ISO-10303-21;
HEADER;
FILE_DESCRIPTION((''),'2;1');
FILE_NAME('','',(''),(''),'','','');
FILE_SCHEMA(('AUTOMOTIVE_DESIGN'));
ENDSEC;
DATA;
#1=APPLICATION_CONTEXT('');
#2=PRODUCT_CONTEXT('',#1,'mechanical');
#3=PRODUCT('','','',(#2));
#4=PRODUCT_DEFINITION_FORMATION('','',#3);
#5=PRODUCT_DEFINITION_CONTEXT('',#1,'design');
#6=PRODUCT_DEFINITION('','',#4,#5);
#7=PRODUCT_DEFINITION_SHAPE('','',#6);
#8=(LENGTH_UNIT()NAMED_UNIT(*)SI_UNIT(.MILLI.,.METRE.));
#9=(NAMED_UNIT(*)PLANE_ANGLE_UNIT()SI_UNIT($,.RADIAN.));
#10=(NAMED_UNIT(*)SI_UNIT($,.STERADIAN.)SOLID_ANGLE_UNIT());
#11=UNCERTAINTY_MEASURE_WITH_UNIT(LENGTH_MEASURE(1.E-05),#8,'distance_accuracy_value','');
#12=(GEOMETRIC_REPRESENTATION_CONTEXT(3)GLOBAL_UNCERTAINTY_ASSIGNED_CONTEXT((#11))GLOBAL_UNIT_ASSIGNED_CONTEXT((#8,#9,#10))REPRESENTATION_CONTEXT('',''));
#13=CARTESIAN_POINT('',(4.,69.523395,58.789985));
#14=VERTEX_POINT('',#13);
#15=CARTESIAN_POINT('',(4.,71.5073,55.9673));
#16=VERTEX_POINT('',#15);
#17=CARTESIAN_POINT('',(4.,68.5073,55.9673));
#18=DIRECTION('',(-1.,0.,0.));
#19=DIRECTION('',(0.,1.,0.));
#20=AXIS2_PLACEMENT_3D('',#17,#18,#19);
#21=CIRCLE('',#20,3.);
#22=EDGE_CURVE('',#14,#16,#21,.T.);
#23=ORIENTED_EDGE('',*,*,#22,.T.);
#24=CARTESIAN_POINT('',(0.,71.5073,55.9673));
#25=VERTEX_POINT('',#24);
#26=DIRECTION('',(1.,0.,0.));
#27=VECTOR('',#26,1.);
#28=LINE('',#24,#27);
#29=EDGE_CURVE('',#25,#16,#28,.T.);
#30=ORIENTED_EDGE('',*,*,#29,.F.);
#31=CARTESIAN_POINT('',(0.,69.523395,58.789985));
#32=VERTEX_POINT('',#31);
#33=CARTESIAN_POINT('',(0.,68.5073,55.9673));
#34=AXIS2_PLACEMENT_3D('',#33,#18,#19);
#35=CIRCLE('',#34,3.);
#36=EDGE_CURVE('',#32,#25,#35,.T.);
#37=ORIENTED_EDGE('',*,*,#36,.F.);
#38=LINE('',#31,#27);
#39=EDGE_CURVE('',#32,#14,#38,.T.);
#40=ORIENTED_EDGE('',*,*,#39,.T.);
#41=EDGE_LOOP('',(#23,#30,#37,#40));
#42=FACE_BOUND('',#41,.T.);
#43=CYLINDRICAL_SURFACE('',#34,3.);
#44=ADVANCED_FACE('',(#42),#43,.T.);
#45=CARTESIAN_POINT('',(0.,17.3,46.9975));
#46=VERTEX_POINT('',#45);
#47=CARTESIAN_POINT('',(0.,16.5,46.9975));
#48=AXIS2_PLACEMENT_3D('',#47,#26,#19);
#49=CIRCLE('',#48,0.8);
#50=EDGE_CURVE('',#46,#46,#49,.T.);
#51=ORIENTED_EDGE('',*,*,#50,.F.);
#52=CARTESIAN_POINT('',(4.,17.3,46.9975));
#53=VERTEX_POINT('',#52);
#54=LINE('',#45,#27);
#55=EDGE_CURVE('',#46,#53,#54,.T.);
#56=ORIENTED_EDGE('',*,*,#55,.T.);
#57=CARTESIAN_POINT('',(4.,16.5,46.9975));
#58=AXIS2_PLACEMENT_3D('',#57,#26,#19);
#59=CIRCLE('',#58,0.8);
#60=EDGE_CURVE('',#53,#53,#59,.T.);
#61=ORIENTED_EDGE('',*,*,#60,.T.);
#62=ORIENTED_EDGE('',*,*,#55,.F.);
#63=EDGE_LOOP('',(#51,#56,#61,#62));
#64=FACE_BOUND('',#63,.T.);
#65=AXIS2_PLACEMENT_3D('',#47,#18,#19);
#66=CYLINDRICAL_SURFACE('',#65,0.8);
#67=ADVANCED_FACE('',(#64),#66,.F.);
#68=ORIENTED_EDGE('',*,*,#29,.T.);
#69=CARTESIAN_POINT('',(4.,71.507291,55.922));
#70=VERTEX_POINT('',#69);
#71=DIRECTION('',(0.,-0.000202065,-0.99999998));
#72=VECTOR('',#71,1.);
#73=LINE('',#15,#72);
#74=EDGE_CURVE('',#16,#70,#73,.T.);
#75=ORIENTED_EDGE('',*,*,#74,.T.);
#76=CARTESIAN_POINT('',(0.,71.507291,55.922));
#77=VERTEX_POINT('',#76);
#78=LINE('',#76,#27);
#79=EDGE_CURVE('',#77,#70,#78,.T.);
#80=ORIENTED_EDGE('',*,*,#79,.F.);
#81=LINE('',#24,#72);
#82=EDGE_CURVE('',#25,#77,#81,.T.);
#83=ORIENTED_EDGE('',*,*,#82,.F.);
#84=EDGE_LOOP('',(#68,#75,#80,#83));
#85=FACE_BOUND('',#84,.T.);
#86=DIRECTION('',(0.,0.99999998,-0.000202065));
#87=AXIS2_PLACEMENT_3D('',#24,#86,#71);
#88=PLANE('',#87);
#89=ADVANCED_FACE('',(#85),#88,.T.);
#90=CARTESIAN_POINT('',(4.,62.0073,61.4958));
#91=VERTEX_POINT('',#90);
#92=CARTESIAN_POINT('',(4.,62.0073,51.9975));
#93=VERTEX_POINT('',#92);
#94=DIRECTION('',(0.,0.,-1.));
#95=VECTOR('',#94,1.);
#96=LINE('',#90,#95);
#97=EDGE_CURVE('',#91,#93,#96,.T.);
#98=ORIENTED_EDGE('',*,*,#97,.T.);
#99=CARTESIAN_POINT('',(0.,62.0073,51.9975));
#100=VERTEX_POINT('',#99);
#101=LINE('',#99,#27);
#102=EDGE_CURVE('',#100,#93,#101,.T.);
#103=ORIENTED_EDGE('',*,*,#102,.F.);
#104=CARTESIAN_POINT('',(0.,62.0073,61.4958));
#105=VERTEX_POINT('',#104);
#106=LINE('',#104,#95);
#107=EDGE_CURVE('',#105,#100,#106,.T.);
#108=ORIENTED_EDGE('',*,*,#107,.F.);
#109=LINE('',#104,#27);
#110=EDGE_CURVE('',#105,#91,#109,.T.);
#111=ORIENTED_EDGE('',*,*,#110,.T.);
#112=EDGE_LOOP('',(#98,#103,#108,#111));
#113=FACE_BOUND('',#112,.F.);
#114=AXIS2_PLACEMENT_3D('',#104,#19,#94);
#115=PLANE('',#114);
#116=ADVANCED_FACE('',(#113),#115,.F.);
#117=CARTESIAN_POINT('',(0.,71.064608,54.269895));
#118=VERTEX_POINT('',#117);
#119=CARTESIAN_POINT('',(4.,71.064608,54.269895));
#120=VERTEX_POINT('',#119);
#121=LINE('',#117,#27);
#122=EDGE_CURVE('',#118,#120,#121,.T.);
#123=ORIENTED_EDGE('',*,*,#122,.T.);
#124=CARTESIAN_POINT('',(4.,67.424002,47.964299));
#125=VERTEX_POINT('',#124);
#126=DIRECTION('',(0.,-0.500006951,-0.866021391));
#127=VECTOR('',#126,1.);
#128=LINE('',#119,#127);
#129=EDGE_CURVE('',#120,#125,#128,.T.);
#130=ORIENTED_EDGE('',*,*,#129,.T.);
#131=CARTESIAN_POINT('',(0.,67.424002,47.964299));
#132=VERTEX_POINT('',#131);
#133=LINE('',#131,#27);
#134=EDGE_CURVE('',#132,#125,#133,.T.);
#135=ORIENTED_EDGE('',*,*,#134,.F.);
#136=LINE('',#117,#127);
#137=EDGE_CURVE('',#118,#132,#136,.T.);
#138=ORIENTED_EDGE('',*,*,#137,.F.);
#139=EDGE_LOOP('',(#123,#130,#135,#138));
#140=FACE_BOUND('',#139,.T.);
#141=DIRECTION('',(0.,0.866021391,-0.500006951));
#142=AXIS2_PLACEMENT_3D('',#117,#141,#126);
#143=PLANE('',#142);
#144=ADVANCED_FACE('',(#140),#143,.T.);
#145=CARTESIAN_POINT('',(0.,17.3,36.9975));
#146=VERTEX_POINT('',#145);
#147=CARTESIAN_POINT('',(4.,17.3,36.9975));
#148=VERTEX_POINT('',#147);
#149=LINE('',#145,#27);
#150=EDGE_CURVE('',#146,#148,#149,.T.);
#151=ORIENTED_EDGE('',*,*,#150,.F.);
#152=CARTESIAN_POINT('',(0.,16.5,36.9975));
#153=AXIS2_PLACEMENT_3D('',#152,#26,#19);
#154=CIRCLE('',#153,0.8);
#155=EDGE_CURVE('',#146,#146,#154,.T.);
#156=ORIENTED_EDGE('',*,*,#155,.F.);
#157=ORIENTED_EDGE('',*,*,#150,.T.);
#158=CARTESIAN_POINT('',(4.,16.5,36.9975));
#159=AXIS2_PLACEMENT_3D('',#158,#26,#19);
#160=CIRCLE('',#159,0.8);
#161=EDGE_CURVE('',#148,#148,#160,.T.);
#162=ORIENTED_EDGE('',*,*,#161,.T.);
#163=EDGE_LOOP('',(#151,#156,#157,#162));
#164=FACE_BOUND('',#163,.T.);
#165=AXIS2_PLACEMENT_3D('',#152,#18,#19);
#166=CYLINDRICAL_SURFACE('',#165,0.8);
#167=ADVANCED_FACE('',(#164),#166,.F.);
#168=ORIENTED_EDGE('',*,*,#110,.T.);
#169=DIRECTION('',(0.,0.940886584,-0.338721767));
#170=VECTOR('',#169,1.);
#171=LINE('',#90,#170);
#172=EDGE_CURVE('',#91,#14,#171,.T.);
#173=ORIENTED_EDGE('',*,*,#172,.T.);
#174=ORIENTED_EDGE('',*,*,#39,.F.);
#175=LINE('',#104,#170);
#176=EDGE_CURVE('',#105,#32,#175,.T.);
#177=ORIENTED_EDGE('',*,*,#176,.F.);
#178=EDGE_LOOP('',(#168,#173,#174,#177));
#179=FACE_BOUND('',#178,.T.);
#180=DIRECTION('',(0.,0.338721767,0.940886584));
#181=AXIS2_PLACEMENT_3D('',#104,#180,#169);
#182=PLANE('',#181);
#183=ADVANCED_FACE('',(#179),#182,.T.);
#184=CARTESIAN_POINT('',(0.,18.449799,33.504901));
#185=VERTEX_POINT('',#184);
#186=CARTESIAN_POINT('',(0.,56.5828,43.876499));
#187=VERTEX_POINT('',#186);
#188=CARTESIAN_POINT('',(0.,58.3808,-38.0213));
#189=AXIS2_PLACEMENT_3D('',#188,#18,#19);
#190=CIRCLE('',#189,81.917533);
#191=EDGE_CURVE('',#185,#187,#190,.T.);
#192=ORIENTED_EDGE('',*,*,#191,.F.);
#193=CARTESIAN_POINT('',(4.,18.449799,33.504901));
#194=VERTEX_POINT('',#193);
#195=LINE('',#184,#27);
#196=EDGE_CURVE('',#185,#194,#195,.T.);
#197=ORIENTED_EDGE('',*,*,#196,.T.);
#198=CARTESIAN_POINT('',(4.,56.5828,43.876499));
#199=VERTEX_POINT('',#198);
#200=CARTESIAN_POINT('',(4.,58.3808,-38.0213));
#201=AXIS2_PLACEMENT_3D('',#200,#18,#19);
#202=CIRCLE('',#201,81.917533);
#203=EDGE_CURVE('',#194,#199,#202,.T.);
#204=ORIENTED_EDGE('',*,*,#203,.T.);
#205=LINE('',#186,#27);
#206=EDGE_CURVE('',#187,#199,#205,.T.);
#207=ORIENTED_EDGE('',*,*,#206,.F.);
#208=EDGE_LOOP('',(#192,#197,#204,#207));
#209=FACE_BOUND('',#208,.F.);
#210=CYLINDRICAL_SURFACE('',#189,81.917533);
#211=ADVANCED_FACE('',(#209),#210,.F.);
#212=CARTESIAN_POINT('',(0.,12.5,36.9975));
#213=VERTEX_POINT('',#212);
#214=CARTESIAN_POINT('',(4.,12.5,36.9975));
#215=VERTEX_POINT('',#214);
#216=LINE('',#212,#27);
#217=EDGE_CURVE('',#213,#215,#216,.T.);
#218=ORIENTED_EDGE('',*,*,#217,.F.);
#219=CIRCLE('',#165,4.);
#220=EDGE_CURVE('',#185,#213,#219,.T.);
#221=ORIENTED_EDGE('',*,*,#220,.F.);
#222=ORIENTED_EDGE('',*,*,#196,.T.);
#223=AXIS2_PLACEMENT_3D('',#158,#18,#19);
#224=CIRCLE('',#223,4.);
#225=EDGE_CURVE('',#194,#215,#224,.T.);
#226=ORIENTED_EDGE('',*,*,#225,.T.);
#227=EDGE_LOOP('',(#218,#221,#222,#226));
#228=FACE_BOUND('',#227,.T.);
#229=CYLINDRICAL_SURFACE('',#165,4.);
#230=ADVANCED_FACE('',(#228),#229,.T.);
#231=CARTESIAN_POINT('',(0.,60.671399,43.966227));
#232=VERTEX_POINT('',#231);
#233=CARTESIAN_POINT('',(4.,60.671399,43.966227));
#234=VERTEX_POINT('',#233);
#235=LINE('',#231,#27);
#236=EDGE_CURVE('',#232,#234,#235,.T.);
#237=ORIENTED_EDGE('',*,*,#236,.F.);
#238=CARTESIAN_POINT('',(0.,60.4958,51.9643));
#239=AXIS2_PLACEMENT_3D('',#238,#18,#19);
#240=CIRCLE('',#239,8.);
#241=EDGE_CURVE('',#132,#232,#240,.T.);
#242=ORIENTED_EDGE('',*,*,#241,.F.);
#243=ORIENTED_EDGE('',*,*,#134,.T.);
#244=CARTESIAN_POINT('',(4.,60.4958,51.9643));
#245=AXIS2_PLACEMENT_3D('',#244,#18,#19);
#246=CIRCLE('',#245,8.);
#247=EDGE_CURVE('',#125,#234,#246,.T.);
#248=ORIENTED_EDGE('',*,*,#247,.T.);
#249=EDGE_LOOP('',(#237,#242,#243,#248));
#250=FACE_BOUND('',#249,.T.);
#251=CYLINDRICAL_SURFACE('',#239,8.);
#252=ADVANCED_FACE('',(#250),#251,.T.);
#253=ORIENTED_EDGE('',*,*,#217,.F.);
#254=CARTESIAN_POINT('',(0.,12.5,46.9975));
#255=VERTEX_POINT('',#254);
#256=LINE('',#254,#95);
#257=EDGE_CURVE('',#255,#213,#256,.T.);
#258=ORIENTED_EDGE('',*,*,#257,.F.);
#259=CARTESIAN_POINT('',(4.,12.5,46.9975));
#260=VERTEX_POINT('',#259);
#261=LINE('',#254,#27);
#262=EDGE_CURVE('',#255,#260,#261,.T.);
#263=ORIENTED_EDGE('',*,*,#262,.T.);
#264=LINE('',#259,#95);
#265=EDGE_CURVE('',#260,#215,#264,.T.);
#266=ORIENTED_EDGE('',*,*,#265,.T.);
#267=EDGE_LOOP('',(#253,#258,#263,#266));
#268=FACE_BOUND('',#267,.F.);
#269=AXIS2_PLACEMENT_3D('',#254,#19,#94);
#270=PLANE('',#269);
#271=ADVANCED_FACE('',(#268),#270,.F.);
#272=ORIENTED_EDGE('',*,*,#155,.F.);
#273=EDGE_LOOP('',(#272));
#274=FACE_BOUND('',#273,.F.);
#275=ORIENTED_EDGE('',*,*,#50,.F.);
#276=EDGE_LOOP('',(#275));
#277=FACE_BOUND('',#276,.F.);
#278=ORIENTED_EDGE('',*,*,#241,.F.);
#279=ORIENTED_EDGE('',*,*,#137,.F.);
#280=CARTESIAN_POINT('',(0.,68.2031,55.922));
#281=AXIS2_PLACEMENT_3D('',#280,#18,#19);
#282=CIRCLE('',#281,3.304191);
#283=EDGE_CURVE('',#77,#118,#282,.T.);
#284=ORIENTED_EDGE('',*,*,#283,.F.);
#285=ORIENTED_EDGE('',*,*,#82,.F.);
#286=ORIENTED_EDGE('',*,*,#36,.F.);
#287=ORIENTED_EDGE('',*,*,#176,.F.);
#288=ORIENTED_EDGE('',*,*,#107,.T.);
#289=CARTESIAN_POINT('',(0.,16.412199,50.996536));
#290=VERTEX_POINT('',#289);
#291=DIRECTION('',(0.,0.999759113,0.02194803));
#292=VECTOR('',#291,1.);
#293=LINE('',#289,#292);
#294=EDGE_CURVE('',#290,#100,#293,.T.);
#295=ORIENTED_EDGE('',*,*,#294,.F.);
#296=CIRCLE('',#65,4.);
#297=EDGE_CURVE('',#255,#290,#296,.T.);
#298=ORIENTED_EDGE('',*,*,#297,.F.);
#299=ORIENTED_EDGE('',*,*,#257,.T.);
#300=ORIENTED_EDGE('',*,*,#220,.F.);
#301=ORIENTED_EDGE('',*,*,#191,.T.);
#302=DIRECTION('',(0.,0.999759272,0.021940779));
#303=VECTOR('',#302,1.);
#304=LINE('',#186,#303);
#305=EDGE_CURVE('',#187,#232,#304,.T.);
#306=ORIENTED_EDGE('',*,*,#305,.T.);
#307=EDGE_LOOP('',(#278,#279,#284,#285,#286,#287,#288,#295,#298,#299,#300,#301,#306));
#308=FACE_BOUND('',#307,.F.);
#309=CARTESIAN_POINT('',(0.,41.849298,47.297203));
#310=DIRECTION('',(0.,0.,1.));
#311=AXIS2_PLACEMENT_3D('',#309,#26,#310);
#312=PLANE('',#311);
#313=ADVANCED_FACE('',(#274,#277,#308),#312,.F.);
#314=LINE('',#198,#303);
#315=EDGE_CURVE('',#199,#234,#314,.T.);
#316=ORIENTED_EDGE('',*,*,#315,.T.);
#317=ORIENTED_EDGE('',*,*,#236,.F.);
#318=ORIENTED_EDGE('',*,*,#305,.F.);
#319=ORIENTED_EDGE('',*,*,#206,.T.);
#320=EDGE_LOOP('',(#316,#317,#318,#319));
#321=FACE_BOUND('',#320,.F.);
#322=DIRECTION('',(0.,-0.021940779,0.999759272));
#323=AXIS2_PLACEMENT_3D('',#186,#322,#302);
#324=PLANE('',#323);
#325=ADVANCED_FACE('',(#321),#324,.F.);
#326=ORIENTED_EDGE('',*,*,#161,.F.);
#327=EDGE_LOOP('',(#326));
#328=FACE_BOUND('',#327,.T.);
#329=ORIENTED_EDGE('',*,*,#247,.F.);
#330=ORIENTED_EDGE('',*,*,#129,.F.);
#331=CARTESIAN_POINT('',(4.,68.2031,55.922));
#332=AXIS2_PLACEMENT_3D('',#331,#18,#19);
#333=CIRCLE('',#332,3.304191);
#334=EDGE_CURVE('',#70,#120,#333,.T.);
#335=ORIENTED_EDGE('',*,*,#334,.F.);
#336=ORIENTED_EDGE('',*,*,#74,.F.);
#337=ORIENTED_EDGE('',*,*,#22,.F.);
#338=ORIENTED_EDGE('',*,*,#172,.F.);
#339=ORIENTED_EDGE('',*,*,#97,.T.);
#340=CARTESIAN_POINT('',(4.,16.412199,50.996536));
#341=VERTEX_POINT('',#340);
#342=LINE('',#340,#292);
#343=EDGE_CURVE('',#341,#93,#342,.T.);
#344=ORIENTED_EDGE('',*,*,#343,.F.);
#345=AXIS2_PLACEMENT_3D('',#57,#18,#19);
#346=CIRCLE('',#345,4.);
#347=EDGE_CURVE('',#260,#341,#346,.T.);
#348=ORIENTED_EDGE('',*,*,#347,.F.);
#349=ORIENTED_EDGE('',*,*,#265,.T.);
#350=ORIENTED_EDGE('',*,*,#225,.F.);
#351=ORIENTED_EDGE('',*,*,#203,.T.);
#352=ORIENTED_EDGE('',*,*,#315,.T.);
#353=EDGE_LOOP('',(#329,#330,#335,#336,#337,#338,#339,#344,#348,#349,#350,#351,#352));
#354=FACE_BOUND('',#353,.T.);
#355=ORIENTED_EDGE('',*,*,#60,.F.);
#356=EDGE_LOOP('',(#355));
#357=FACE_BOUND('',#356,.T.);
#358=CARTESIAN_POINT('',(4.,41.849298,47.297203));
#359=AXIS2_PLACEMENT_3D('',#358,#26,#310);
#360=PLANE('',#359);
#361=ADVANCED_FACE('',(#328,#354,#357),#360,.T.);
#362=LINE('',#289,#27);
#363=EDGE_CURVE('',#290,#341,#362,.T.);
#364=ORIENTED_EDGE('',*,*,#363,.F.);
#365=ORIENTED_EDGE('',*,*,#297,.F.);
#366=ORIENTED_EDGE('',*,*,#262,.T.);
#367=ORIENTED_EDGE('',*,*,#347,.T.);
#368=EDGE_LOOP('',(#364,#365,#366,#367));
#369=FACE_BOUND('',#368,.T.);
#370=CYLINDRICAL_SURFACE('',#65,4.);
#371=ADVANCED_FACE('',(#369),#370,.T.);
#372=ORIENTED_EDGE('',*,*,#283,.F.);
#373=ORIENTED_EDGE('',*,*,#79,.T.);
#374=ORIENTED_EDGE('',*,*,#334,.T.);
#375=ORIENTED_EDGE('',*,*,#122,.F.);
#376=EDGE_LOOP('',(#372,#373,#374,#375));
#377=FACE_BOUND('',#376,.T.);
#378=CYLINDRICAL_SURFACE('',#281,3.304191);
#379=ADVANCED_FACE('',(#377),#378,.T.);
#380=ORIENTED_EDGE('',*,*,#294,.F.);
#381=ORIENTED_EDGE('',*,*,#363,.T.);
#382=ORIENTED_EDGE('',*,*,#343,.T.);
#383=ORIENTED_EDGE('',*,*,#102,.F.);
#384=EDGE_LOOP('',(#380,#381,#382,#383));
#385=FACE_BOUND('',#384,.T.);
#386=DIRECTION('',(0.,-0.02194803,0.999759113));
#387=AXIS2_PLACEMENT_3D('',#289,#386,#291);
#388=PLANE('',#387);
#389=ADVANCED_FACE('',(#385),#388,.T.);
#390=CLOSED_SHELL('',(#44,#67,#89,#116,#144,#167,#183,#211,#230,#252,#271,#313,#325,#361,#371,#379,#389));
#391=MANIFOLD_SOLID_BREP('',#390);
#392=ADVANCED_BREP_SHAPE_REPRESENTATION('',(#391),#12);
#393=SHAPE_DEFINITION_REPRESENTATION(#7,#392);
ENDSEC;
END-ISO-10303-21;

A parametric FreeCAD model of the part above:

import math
import FreeCAD as App
import Part
import Sketcher
Q = App.Units.Quantity

doc = App.newDocument("Part")
body = doc.addObject("PartDesign::Body", "Body")

# Sketch on YZ plane
sketch1 = body.newObject("Sketcher::SketchObject", "Sketch")
sketch1.AttachmentSupport = (doc.getObject("YZ_Plane"), [""])
sketch1.MapMode = "FlatFace"
sketch1.addGeometry([
    Part.ArcOfCircle(Part.Circle(App.Vector(16.5, 46.998, 0), App.Vector(0, 0, 1), 4), math.radians(91), math.radians(180)),  # 0
    Part.LineSegment(App.Vector(12.5, 46.998, 0), App.Vector(12.5, 36.998, 0)),  # 1
    Part.ArcOfCircle(Part.Circle(App.Vector(16.5, 36.998, 0), App.Vector(0, 0, 1), 4), math.radians(180), math.radians(299)),  # 2
    Part.ArcOfCircle(Part.Circle(App.Vector(58.381, -38.021, 0), App.Vector(0, 0, 1), 81.918), math.radians(91), math.radians(119)),  # 3
    Part.LineSegment(App.Vector(56.583, 43.877, 0), App.Vector(60.671, 43.966, 0)),  # 4
    Part.ArcOfCircle(Part.Circle(App.Vector(60.496, 51.964, 0), App.Vector(0, 0, 1), 8), math.radians(-89), math.radians(-30)),  # 5
    Part.LineSegment(App.Vector(67.424, 47.964, 0), App.Vector(71.065, 54.27, 0)),  # 6
    Part.ArcOfCircle(Part.Circle(App.Vector(68.203, 55.922, 0), App.Vector(0, 0, 1), 3.304), math.radians(-30), math.radians(0)),  # 7
    Part.LineSegment(App.Vector(71.507, 55.922, 0), App.Vector(71.507, 55.967, 0)),  # 8
    Part.ArcOfCircle(Part.Circle(App.Vector(68.507, 55.967, 0), App.Vector(0, 0, 1), 3), math.radians(0), math.radians(70)),  # 9
    Part.LineSegment(App.Vector(69.523, 58.79, 0), App.Vector(62.007, 61.496, 0)),  # 10
    Part.LineSegment(App.Vector(62.007, 61.496, 0), App.Vector(62.007, 51.998, 0)),  # 11
    Part.LineSegment(App.Vector(62.007, 51.998, 0), App.Vector(16.412, 50.996, 0)),  # 12
    Part.Circle(App.Vector(16.5, 36.998, 0), App.Vector(0, 0, 1), 0.8),  # 13
    Part.Circle(App.Vector(16.5, 46.998, 0), App.Vector(0, 0, 1), 0.8),  # 14
], False)
sketch1.addConstraint([
    Sketcher.Constraint("Tangent", 0, 2, 1, 1),
    Sketcher.Constraint("Tangent", 1, 2, 2, 1),
    Sketcher.Constraint("Tangent", 2, 2, 3, 2),
    Sketcher.Constraint("Tangent", 3, 1, 4, 1),
    Sketcher.Constraint("Tangent", 4, 2, 5, 1),
    Sketcher.Constraint("Tangent", 5, 2, 6, 1),
    Sketcher.Constraint("Tangent", 6, 2, 7, 1),
    Sketcher.Constraint("Tangent", 7, 2, 8, 1),
    Sketcher.Constraint("Tangent", 8, 2, 9, 1),
    Sketcher.Constraint("Tangent", 9, 2, 10, 1),
    Sketcher.Constraint("Coincident", 10, 2, 11, 1),
    Sketcher.Constraint("Coincident", 11, 2, 12, 1),
    Sketcher.Constraint("Tangent", 12, 2, 0, 1),
    Sketcher.Constraint("Vertical", 1),
    Sketcher.Constraint("Vertical", 8),
    Sketcher.Constraint("Vertical", 11),
    Sketcher.Constraint("Coincident", 13, 3, 2, 3),
    Sketcher.Constraint("Coincident", 14, 3, 0, 3),
    Sketcher.Constraint("Equal", 0, 2),
    Sketcher.Constraint("Equal", 13, 14),
    Sketcher.Constraint("Parallel", 4, 12),
    Sketcher.Constraint("Radius", 0, Q("4 mm")),
    Sketcher.Constraint("Radius", 5, Q("8 mm")),
    Sketcher.Constraint("Radius", 9, Q("3 mm")),
    Sketcher.Constraint("Diameter", 13, Q("1.6 mm")),
    Sketcher.Constraint("DistanceY", 1, 2, 1, 1, Q("10 mm")),
    Sketcher.Constraint("Angle", 6, Q("59.9996 deg")),
    Sketcher.Constraint("Angle", 10, Q("160.201 deg")),
    Sketcher.Constraint("DistanceX", -1, 1, 0, 3, Q("16.5 mm")),
    Sketcher.Constraint("Radius", 3, Q("81.9175 mm")),
    Sketcher.Constraint("Radius", 7, Q("3.3042 mm")),
    Sketcher.Constraint("DistanceX", 10, 2, 9, 3, Q("6.5 mm")),
    Sketcher.Constraint("DistanceY", -1, 1, 6, 2, Q("54.27 mm")),
    Sketcher.Constraint("DistanceY", -1, 1, 9, 2, Q("58.79 mm")),
    Sketcher.Constraint("Distance", 6, Q("7.281 mm")),
    Sketcher.Constraint("Distance", 12, Q("45.606 mm")),
    Sketcher.Constraint("DistanceY", 11, 2, 11, 1, Q("9.4983 mm")),
    Sketcher.Constraint("DistanceX", -1, 1, 7, 3, Q("68.203 mm")),
])
pad1 = body.newObject("PartDesign::Pad", "Pad")
pad1.Profile = sketch1
pad1.Length = 4

doc.recompute()
